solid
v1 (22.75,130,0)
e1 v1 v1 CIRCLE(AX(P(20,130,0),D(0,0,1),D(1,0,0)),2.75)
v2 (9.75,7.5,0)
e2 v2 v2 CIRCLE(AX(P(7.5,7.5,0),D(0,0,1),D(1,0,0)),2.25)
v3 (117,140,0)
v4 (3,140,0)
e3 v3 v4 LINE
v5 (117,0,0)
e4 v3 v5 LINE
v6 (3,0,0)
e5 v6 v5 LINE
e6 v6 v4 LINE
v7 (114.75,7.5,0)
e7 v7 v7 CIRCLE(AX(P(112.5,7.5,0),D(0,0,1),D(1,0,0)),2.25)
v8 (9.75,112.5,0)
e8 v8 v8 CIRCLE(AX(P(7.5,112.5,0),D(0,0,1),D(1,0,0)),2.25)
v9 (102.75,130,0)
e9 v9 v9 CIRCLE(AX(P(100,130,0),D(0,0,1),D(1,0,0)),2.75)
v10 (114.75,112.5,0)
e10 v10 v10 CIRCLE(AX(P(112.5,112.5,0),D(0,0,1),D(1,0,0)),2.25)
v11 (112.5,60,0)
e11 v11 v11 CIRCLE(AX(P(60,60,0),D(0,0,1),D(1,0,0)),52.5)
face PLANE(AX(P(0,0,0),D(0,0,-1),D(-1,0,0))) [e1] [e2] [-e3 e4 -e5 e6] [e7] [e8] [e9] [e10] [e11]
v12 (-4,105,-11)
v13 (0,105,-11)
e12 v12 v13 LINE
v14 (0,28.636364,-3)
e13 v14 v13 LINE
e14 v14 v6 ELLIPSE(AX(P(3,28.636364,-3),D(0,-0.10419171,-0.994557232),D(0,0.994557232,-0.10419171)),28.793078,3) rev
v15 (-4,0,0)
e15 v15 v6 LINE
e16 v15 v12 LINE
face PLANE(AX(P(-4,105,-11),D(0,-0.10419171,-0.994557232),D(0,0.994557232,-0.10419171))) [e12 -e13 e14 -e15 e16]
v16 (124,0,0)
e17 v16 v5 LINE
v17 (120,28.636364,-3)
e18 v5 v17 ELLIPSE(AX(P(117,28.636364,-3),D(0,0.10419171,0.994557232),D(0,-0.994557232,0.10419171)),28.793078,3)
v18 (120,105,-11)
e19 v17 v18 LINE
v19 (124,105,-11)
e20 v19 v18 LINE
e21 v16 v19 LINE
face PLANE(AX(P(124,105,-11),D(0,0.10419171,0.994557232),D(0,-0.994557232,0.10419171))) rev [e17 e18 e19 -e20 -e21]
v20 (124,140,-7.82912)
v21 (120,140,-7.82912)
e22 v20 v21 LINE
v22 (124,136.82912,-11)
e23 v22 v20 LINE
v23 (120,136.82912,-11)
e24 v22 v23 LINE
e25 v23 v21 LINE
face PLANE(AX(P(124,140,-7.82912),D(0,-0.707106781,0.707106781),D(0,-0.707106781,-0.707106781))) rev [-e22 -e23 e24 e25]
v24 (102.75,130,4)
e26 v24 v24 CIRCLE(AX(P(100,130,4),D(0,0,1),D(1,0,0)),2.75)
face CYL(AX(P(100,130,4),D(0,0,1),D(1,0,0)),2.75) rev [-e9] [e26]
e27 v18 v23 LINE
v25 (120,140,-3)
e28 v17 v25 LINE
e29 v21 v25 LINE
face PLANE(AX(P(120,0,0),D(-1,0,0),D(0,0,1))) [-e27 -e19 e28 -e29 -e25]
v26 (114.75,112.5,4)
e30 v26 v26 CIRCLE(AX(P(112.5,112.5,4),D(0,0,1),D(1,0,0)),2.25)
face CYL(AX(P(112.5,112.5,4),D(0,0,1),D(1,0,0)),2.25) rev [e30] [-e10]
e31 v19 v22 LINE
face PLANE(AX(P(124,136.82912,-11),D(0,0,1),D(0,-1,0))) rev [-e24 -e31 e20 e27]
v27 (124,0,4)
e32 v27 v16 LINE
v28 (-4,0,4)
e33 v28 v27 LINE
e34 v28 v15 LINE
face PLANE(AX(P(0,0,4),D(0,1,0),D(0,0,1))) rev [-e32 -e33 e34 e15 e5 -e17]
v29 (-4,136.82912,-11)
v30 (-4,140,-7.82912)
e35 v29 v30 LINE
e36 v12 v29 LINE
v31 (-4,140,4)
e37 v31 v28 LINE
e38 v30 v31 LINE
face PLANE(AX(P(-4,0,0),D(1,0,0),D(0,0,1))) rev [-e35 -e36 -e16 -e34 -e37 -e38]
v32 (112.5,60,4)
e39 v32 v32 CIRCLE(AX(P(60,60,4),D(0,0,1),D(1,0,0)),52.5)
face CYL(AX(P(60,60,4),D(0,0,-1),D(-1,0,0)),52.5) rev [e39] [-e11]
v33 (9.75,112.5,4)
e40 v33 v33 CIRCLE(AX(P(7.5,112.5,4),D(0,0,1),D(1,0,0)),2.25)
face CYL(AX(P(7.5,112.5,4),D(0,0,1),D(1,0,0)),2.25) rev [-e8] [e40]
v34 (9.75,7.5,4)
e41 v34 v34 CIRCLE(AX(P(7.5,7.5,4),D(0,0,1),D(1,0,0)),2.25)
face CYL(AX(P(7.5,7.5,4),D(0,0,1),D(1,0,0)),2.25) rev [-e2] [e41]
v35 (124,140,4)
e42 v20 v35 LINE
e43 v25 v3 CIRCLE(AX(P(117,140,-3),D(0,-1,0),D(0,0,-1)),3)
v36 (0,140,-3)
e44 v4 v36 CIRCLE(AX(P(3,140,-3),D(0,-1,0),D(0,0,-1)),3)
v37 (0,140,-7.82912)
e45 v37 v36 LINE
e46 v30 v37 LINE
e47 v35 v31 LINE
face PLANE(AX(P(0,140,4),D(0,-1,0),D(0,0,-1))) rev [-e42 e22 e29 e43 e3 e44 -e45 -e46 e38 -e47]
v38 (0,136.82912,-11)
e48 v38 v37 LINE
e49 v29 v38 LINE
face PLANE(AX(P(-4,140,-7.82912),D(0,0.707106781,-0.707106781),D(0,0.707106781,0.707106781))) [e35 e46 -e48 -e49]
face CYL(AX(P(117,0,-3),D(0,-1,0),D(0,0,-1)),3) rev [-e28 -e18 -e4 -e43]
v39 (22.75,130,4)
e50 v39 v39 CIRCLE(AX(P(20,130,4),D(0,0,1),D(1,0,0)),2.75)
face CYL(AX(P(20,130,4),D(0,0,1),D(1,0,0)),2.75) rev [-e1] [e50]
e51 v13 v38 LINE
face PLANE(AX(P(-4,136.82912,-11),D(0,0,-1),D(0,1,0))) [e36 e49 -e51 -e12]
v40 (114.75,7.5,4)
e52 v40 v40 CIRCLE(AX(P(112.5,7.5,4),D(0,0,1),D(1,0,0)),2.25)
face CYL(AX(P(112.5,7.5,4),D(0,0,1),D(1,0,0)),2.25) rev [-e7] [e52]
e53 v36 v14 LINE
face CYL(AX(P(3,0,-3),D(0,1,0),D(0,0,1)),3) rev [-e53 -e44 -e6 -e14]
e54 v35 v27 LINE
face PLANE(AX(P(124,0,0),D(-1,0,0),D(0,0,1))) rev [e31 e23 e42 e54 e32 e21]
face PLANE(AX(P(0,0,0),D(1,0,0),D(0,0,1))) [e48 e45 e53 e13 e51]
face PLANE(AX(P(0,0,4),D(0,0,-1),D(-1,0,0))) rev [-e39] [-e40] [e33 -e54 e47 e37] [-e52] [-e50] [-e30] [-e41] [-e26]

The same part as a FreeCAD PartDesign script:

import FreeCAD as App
import Part
import Sketcher
from FreeCAD import Vector
Q = App.Units.Quantity


def edges_at(feature, points):
    """Names of the edges that pass closest to the given points."""
    edges = feature.Shape.Edges
    near = lambda p: min(range(len(edges)), key=lambda i: edges[i].distToShape(Part.Vertex(*p))[0])
    return sorted({f"Edge{near(p) + 1}" for p in points})


def add_polygon(sketch, points):
    """Adds a closed chain of lines whose ends are joined by coincident constraints."""
    first, n = sketch.GeometryCount, len(points)
    for a, b in zip(points, points[1:] + points[:1]):
        sketch.addGeometry(Part.LineSegment(App.Vector(*a, 0), App.Vector(*b, 0)), False)
    for i in range(n):
        sketch.addConstraint(Sketcher.Constraint("Coincident", first + i, 2, first + (i + 1) % n, 1))

doc = App.newDocument("Part")
body = doc.addObject("PartDesign::Body", "Body")

# Sketch on XY plane
sketch1 = doc.addObject("Sketcher::SketchObject", "Sketch")
body.addObject(sketch1)
sketch1.AttachmentSupport = (doc.XY_Plane, [""])
sketch1.MapMode = "FlatFace"
add_polygon(sketch1, [(0, 140), (0, 0), (120, 0), (120, 140)])  # lines 0-3
sketch1.addGeometry(Part.Circle(Vector(60, 60, 0), Vector(0, 0, 1), 52), False)  # 4
sketch1.addConstraint(Sketcher.Constraint("Vertical", 0))
sketch1.addConstraint(Sketcher.Constraint("Horizontal", 1))
sketch1.addConstraint(Sketcher.Constraint("Vertical", 2))
sketch1.addConstraint(Sketcher.Constraint("Horizontal", 3))
sketch1.addConstraint(Sketcher.Constraint("Coincident", 0, 2, -1, 1))
sketch1.addConstraint(Sketcher.Constraint("Diameter", 4, Q("105 mm")))
sketch1.addConstraint(Sketcher.Constraint("DistanceX", 1, 1, 1, 2, Q("120 mm")))
sketch1.addConstraint(Sketcher.Constraint("DistanceY", 0, 2, 0, 1, Q("140 mm")))
sketch1.addConstraint(Sketcher.Constraint("DistanceX", -1, 1, 4, 3, Q("60 mm")))
sketch1.addConstraint(Sketcher.Constraint("DistanceY", -1, 1, 4, 3, Q("60 mm")))
pad1 = doc.addObject("PartDesign::Pad", "Pad")
body.addObject(pad1)
pad1.Profile = sketch1
pad1.Length = 4

# Sketch on XY plane
sketch2 = doc.addObject("Sketcher::SketchObject", "Sketch001")
body.addObject(sketch2)
sketch2.AttachmentSupport = (doc.XY_Plane, [""])
sketch2.MapMode = "FlatFace"
sketch2.AttachmentOffset = App.Placement(Vector(0, 0, 4), App.Rotation())
sketch2.addGeometry(Part.Circle(Vector(7.5, 7.5, 0), Vector(0, 0, 1), 2.2), False)
sketch2.addGeometry(Part.Circle(Vector(60, 60, 0), Vector(0, 0, 1), 2.2), False)
sketch2.addGeometry(Part.Circle(Vector(7.5, 112.5, 0), Vector(0, 0, 1), 2.2), False)
sketch2.addGeometry(Part.Circle(Vector(112.5, 112.5, 0), Vector(0, 0, 1), 2.2), False)
sketch2.addGeometry(Part.Circle(Vector(112.5, 7.5, 0), Vector(0, 0, 1), 2.2), False)
sketch2.addConstraint(Sketcher.Constraint("Equal", 0, 1))
sketch2.addConstraint(Sketcher.Constraint("Equal", 1, 2))
sketch2.addConstraint(Sketcher.Constraint("Equal", 2, 3))
sketch2.addConstraint(Sketcher.Constraint("Equal", 3, 4))
sketch2.addConstraint(Sketcher.Constraint("Horizontal", 2, 3, 3, 3))
sketch2.addConstraint(Sketcher.Constraint("Horizontal", 0, 3, 4, 3))
sketch2.addConstraint(Sketcher.Constraint("Vertical", 0, 3, 2, 3))
sketch2.addConstraint(Sketcher.Constraint("Vertical", 3, 3, 4, 3))
sketch2.addConstraint(Sketcher.Constraint("Diameter", 0, Q("4.5 mm")))
sketch2.addConstraint(Sketcher.Constraint("DistanceX", -1, 1, 1, 3, Q("60 mm")))
sketch2.addConstraint(Sketcher.Constraint("DistanceY", -1, 1, 1, 3, Q("60 mm")))
sketch2.addConstraint(Sketcher.Constraint("DistanceY", 0, 3, 2, 3, Q("105 mm")))
sketch2.addConstraint(Sketcher.Constraint("DistanceX", 2, 3, 3, 3, Q("105 mm")))
sketch2.addConstraint(Sketcher.Constraint("DistanceX", -1, 1, 0, 3, Q("7.5 mm")))
sketch2.addConstraint(Sketcher.Constraint("DistanceY", -1, 1, 0, 3, Q("7.5 mm")))
doc.recompute()
hole = doc.addObject("PartDesign::Hole", "Hole")
body.addObject(hole)
hole.Profile = sketch2
hole.ThreadType = "None"
hole.Diameter = 4.5
hole.DepthType = "ThroughAll"

# Sketch on XY plane
sketch3 = doc.addObject("Sketcher::SketchObject", "Sketch002")
body.addObject(sketch3)
sketch3.AttachmentSupport = (doc.XY_Plane, [""])
sketch3.MapMode = "FlatFace"
sketch3.AttachmentOffset = App.Placement(Vector(0, 0, 4), App.Rotation())
sketch3.addGeometry(Part.Circle(Vector(100, 130, 0), Vector(0, 0, 1), 2.8), False)
sketch3.addGeometry(Part.Circle(Vector(20, 130, 0), Vector(0, 0, 1), 2.8), False)
sketch3.addConstraint(Sketcher.Constraint("Equal", 0, 1))
sketch3.addConstraint(Sketcher.Constraint("Horizontal", 0, 3, 1, 3))
sketch3.addConstraint(Sketcher.Constraint("Diameter", 0, Q("5.5 mm")))
sketch3.addConstraint(Sketcher.Constraint("DistanceX", -1, 1, 0, 3, Q("100 mm")))
sketch3.addConstraint(Sketcher.Constraint("DistanceY", -1, 1, 0, 3, Q("130 mm")))
sketch3.addConstraint(Sketcher.Constraint("DistanceX", -1, 1, 1, 3, Q("20 mm")))
doc.recompute()
hole2 = doc.addObject("PartDesign::Hole", "Hole001")
body.addObject(hole2)
hole2.Profile = sketch3
hole2.ThreadType = "None"
hole2.Diameter = 5.5
hole2.DepthType = "ThroughAll"

# Sketch on YZ plane
sketch4 = doc.addObject("Sketcher::SketchObject", "Sketch003")
body.addObject(sketch4)
sketch4.AttachmentSupport = (doc.YZ_Plane, [""])
sketch4.MapMode = "FlatFace"
sketch4.AttachmentOffset = App.Placement(Vector(0, 0, 120), App.Rotation())
add_polygon(sketch4, [(140, -7.8), (140, 4), (0, 4), (0, 0), (105, -11), (136.8, -11)])  # lines 0-5
sketch4.addConstraint(Sketcher.Constraint("Vertical", 0))
sketch4.addConstraint(Sketcher.Constraint("Horizontal", 1))
sketch4.addConstraint(Sketcher.Constraint("Vertical", 2))
sketch4.addConstraint(Sketcher.Constraint("Horizontal", 4))
sketch4.addConstraint(Sketcher.Constraint("Coincident", 2, 2, -1, 1))
sketch4.addConstraint(Sketcher.Constraint("DistanceX", 1, 2, 1, 1, Q("140 mm")))
sketch4.addConstraint(Sketcher.Constraint("DistanceY", 2, 2, 2, 1, Q("4 mm")))
sketch4.addConstraint(Sketcher.Constraint("Angle", 5, Q("45 deg")))
sketch4.addConstraint(Sketcher.Constraint("DistanceX", -1, 1, 3, 2, Q("105 mm")))
sketch4.addConstraint(Sketcher.Constraint("DistanceY", 3, 2, -1, 1, Q("11 mm")))
sketch4.addConstraint(Sketcher.Constraint("Distance", 5, Q("4.484302 mm")))
pad2 = doc.addObject("PartDesign::Pad", "Pad001")
body.addObject(pad2)
pad2.Profile = sketch4
pad2.Length = 4
doc.recompute()

datumplane = doc.addObject("PartDesign::Plane", "DatumPlane")
body.addObject(datumplane)
datumplane.AttachmentSupport = (doc.YZ_Plane, [""])
datumplane.MapMode = "FlatFace"
datumplane.AttachmentOffset = App.Placement(Vector(0, 0, 60), App.Rotation())
mirrored = doc.addObject("PartDesign::Mirrored", "Mirrored")
body.addObject(mirrored)
mirrored.Originals = [pad2]
mirrored.MirrorPlane = (datumplane, [""])
body.Tip = mirrored
doc.recompute()

fillet = doc.addObject("PartDesign::Fillet", "Fillet")
body.addObject(fillet)
fillet.Base = (mirrored, edges_at(mirrored, [(120, 70, 0), (0, 70, 0)]))
fillet.Radius = 3

doc.recompute()
